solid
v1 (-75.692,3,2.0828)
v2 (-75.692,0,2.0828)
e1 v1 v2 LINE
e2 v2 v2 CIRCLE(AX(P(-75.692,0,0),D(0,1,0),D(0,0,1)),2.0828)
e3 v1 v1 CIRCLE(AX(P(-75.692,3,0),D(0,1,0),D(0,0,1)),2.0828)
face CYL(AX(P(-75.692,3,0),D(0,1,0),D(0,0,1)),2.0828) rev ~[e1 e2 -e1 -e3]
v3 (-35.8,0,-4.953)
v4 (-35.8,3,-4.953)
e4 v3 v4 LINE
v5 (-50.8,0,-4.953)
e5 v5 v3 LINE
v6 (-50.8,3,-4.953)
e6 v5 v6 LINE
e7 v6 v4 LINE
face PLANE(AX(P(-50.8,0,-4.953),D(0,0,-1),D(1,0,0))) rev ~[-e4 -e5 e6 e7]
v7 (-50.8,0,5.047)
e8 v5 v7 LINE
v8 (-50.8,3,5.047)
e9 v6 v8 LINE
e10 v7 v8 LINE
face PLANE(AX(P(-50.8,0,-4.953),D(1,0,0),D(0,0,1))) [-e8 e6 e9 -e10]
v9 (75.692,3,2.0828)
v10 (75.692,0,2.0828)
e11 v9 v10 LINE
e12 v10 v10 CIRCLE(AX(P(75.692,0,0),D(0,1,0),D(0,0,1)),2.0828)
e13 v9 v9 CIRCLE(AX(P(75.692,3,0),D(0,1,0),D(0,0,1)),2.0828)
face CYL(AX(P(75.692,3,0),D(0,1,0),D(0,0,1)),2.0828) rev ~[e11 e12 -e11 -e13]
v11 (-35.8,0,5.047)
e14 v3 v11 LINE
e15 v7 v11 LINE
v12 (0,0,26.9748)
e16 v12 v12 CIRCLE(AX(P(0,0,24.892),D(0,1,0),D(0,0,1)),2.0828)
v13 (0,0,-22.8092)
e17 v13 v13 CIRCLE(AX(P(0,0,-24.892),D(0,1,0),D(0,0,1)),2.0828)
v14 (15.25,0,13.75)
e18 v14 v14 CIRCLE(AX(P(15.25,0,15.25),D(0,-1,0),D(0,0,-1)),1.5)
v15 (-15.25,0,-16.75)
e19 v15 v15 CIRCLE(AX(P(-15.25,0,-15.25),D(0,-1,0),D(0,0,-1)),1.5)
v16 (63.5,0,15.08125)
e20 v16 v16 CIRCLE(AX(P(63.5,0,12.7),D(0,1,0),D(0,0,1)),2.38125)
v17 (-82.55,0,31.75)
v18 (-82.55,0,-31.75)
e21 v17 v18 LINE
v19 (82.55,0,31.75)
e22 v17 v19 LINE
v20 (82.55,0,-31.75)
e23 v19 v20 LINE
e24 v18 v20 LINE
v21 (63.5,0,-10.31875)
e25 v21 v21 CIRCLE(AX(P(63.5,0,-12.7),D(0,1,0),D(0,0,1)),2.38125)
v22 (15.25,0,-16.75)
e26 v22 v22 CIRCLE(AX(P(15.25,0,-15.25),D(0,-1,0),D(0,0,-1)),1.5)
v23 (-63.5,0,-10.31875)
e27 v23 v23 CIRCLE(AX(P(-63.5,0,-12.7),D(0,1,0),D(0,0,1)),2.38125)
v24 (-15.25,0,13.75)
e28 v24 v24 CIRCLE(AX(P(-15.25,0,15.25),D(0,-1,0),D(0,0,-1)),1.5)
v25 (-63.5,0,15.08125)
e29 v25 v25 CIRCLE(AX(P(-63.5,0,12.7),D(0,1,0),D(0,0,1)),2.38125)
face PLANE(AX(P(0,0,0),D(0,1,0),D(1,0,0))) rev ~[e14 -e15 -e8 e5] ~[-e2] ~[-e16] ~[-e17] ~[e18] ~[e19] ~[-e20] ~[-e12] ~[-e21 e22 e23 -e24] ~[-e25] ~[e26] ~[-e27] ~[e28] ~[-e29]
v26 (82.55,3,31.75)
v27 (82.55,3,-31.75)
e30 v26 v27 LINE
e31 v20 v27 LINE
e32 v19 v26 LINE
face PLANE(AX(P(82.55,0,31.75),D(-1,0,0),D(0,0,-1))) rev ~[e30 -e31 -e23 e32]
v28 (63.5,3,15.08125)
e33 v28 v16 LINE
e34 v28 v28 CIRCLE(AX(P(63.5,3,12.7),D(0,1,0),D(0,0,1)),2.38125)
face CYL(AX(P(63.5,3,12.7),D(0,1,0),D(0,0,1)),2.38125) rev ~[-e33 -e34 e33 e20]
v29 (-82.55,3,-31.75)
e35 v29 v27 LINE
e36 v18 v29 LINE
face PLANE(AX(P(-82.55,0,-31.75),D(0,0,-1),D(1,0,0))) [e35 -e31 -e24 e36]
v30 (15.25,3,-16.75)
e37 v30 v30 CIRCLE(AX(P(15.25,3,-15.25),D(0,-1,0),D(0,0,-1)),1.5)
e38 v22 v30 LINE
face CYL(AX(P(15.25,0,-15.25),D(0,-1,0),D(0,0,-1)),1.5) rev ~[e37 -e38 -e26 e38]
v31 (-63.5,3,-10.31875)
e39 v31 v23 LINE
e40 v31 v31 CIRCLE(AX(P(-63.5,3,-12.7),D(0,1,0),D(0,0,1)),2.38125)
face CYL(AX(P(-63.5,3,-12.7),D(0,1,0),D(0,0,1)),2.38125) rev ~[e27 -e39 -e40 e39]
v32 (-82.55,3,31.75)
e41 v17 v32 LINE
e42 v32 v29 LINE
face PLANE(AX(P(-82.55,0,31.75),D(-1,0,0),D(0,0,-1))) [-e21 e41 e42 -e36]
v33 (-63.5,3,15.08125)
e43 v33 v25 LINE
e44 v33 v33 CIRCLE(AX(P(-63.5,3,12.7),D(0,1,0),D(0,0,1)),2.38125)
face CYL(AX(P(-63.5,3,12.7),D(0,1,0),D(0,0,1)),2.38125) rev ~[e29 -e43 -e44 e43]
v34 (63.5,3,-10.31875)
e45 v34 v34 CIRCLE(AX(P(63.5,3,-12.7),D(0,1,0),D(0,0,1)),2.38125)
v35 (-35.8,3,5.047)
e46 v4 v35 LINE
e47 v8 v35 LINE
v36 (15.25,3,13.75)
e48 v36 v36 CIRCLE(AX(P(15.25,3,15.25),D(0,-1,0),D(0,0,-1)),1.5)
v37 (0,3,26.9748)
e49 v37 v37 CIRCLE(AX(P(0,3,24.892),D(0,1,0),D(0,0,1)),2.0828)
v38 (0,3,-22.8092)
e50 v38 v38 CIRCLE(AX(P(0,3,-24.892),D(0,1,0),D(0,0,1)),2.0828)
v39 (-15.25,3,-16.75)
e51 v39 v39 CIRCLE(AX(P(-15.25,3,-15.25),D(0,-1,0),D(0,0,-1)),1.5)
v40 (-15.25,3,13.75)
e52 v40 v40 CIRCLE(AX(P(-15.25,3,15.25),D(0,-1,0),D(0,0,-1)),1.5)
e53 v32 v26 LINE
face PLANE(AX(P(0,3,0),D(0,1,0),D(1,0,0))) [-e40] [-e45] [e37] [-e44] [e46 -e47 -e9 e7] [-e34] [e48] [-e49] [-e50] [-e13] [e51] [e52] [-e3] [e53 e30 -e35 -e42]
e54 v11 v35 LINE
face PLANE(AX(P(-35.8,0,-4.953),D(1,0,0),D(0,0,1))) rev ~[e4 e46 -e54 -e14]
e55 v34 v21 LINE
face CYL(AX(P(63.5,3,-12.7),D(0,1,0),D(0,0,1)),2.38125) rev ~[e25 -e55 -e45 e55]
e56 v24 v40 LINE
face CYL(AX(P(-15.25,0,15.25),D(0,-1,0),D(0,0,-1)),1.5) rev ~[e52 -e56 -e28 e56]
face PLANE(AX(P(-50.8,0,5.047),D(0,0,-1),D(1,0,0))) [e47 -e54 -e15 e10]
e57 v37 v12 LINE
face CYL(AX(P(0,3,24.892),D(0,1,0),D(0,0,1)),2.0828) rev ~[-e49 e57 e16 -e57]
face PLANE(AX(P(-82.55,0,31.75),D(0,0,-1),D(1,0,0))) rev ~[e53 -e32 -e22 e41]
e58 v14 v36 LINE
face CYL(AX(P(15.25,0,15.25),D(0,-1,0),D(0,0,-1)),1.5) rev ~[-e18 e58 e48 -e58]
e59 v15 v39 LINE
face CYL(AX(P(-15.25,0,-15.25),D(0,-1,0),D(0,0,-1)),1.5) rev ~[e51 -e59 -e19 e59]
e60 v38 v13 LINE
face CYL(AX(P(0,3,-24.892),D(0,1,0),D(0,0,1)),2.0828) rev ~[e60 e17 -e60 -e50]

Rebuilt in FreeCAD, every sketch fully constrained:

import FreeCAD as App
import Part
import Sketcher
Q = App.Units.Quantity

doc = App.newDocument("Part")
body = doc.addObject("PartDesign::Body", "Body")

sketch1 = body.newObject("Sketcher::SketchObject", "Sketch")
sketch1.AttachmentSupport = (doc.getObject("XZ_Plane"), [""])
sketch1.MapMode = "FlatFace"
sketch1.addGeometry([
    Part.LineSegment(App.Vector(-83, -32, 0), App.Vector(-83, 32, 0)),
    Part.LineSegment(App.Vector(-83, 32, 0), App.Vector(83, 32, 0)),
    Part.LineSegment(App.Vector(83, 32, 0), App.Vector(83, -32, 0)),
    Part.LineSegment(App.Vector(83, -32, 0), App.Vector(-83, -32, 0)),
], False)
sketch1.addConstraint([
    Sketcher.Constraint("Coincident", 0, 2, 1, 1),
    Sketcher.Constraint("Coincident", 1, 2, 2, 1),
    Sketcher.Constraint("Coincident", 2, 2, 3, 1),
    Sketcher.Constraint("Coincident", 3, 2, 0, 1),
    Sketcher.Constraint("Vertical", 0),
    Sketcher.Constraint("Horizontal", 1),
    Sketcher.Constraint("Vertical", 2),
    Sketcher.Constraint("Horizontal", 3),
    Sketcher.Constraint("Symmetric", 0, 2, 2, 2, -1, 1),
    Sketcher.Constraint("DistanceX", 1, 1, 1, 2, Q("6.5 in")),
    Sketcher.Constraint("DistanceY", 0, 1, 0, 2, Q("2.5 in")),
])
pad1 = body.newObject("PartDesign::Pad", "Pad")
pad1.Profile = sketch1
pad1.Length = 3
pad1.Reversed = True

sketch2 = body.newObject("Sketcher::SketchObject", "Sketch001")
sketch2.AttachmentSupport = (doc.getObject("XZ_Plane"), [""])
sketch2.MapMode = "FlatFace"
sketch2.addGeometry(Part.Circle(App.Vector(-15.2, 15.2, 0), App.Vector(0, 0, 1), 1.5), False)
sketch2.addConstraint([
    Sketcher.Constraint("Diameter", 0, Q("3 mm")),
    Sketcher.Constraint("DistanceX", 0, 3, -1, 1, Q("15.25 mm")),
    Sketcher.Constraint("DistanceY", -1, 1, 0, 3, Q("15.25 mm")),
])
pocket1 = body.newObject("PartDesign::Pocket", "Pocket")
pocket1.Profile = sketch2
pocket1.Type = "UpToFirst"

sketch3 = body.newObject("Sketcher::SketchObject", "Sketch002")
sketch3.AttachmentSupport = (doc.getObject("XZ_Plane"), [""])
sketch3.MapMode = "FlatFace"
sketch3.addGeometry(Part.Circle(App.Vector(15.2, 15.2, 0), App.Vector(0, 0, 1), 1.5), False)
sketch3.addConstraint([
    Sketcher.Constraint("Diameter", 0, Q("3 mm")),
    Sketcher.Constraint("DistanceX", -1, 1, 0, 3, Q("15.25 mm")),
    Sketcher.Constraint("DistanceY", -1, 1, 0, 3, Q("15.25 mm")),
])
pocket2 = body.newObject("PartDesign::Pocket", "Pocket001")
pocket2.Profile = sketch3
pocket2.Type = "UpToFirst"

sketch4 = body.newObject("Sketcher::SketchObject", "Sketch003")
sketch4.AttachmentSupport = (doc.getObject("XZ_Plane"), [""])
sketch4.MapMode = "FlatFace"
sketch4.addGeometry(Part.Circle(App.Vector(-15.2, -15.2, 0), App.Vector(0, 0, 1), 1.5), False)
sketch4.addConstraint([
    Sketcher.Constraint("Diameter", 0, Q("3 mm")),
    Sketcher.Constraint("DistanceX", 0, 3, -1, 1, Q("15.25 mm")),
    Sketcher.Constraint("DistanceY", 0, 3, -1, 1, Q("15.25 mm")),
])
pocket3 = body.newObject("PartDesign::Pocket", "Pocket002")
pocket3.Profile = sketch4
pocket3.Type = "UpToFirst"

sketch5 = body.newObject("Sketcher::SketchObject", "Sketch004")
sketch5.AttachmentSupport = (doc.getObject("XZ_Plane"), [""])
sketch5.MapMode = "FlatFace"
sketch5.addGeometry(Part.Circle(App.Vector(15.2, -15.2, 0), App.Vector(0, 0, 1), 1.5), False)
sketch5.addConstraint([
    Sketcher.Constraint("Diameter", 0, Q("3 mm")),
    Sketcher.Constraint("DistanceX", -1, 1, 0, 3, Q("15.25 mm")),
    Sketcher.Constraint("DistanceY", 0, 3, -1, 1, Q("15.25 mm")),
])
pocket4 = body.newObject("PartDesign::Pocket", "Pocket003")
pocket4.Profile = sketch5
pocket4.Type = "UpToFirst"

sketch6 = body.newObject("Sketcher::SketchObject", "Sketch005")
sketch6.AttachmentSupport = (doc.getObject("XZ_Plane"), [""])
sketch6.MapMode = "FlatFace"
sketch6.addGeometry([
    Part.LineSegment(App.Vector(-51, 5, 0), App.Vector(-51, -5, 0)),
    Part.LineSegment(App.Vector(-51, -5, 0), App.Vector(-36, -5, 0)),
    Part.LineSegment(App.Vector(-36, -5, 0), App.Vector(-36, 5, 0)),
    Part.LineSegment(App.Vector(-36, 5, 0), App.Vector(-51, 5, 0)),
], False)
sketch6.addConstraint([
    Sketcher.Constraint("Coincident", 0, 2, 1, 1),
    Sketcher.Constraint("Coincident", 1, 2, 2, 1),
    Sketcher.Constraint("Coincident", 2, 2, 3, 1),
    Sketcher.Constraint("Coincident", 3, 2, 0, 1),
    Sketcher.Constraint("Vertical", 0),
    Sketcher.Constraint("Horizontal", 1),
    Sketcher.Constraint("Vertical", 2),
    Sketcher.Constraint("Horizontal", 3),
    Sketcher.Constraint("DistanceX", 0, 2, -1, 1, Q("2 in")),
    Sketcher.Constraint("DistanceY", 0, 2, -1, 1, Q("0.195 in")),
    Sketcher.Constraint("DistanceX", 1, 1, 1, 2, Q("15 mm")),
    Sketcher.Constraint("DistanceY", 0, 2, 0, 1, Q("10 mm")),
])
pocket5 = body.newObject("PartDesign::Pocket", "Pocket004")
pocket5.Profile = sketch6
pocket5.Type = "UpToFirst"

sketch7 = body.newObject("Sketcher::SketchObject", "Sketch006")
sketch7.AttachmentSupport = (doc.getObject("XZ_Plane"), [""])
sketch7.MapMode = "FlatFace"
sketch7.AttachmentOffset = App.Placement(App.Vector(0, 0, -3), App.Rotation())
sketch7.addGeometry(Part.Circle(App.Vector(-63.5, 12.7, 0), App.Vector(0, 0, 1), 2.4), False)
sketch7.addConstraint([
    Sketcher.Constraint("Diameter", 0, Q("0.1875 in")),
    Sketcher.Constraint("DistanceX", 0, 3, -1, 1, Q("2.5 in")),
    Sketcher.Constraint("DistanceY", -1, 1, 0, 3, Q("0.5 in")),
])
pocket6 = body.newObject("PartDesign::Pocket", "Pocket005")
pocket6.Profile = sketch7
pocket6.Type = "UpToFirst"
pocket6.Reversed = True

sketch8 = body.newObject("Sketcher::SketchObject", "Sketch007")
sketch8.AttachmentSupport = (doc.getObject("XZ_Plane"), [""])
sketch8.MapMode = "FlatFace"
sketch8.AttachmentOffset = App.Placement(App.Vector(0, 0, -3), App.Rotation())
sketch8.addGeometry(Part.Circle(App.Vector(-63.5, -12.7, 0), App.Vector(0, 0, 1), 2.4), False)
sketch8.addConstraint([
    Sketcher.Constraint("Diameter", 0, Q("0.1875 in")),
    Sketcher.Constraint("DistanceX", 0, 3, -1, 1, Q("2.5 in")),
    Sketcher.Constraint("DistanceY", 0, 3, -1, 1, Q("0.5 in")),
])
pocket7 = body.newObject("PartDesign::Pocket", "Pocket006")
pocket7.Profile = sketch8
pocket7.Type = "UpToFirst"
pocket7.Reversed = True

sketch9 = body.newObject("Sketcher::SketchObject", "Sketch008")
sketch9.AttachmentSupport = (doc.getObject("XZ_Plane"), [""])
sketch9.MapMode = "FlatFace"
sketch9.AttachmentOffset = App.Placement(App.Vector(0, 0, -3), App.Rotation())
sketch9.addGeometry(Part.Circle(App.Vector(63.5, -12.7, 0), App.Vector(0, 0, 1), 2.4), False)
sketch9.addConstraint([
    Sketcher.Constraint("Diameter", 0, Q("0.1875 in")),
    Sketcher.Constraint("DistanceX", -1, 1, 0, 3, Q("2.5 in")),
    Sketcher.Constraint("DistanceY", 0, 3, -1, 1, Q("0.5 in")),
])
pocket8 = body.newObject("PartDesign::Pocket", "Pocket007")
pocket8.Profile = sketch9
pocket8.Type = "UpToFirst"
pocket8.Reversed = True

sketch10 = body.newObject("Sketcher::SketchObject", "Sketch009")
sketch10.AttachmentSupport = (doc.getObject("XZ_Plane"), [""])
sketch10.MapMode = "FlatFace"
sketch10.AttachmentOffset = App.Placement(App.Vector(0, 0, -3), App.Rotation())
sketch10.addGeometry(Part.Circle(App.Vector(63.5, 12.7, 0), App.Vector(0, 0, 1), 2.4), False)
sketch10.addConstraint([
    Sketcher.Constraint("Diameter", 0, Q("0.1875 in")),
    Sketcher.Constraint("DistanceX", -1, 1, 0, 3, Q("2.5 in")),
    Sketcher.Constraint("DistanceY", -1, 1, 0, 3, Q("0.5 in")),
])
pocket9 = body.newObject("PartDesign::Pocket", "Pocket008")
pocket9.Profile = sketch10
pocket9.Type = "UpToFirst"
pocket9.Reversed = True

sketch11 = body.newObject("Sketcher::SketchObject", "Sketch010")
sketch11.AttachmentSupport = (doc.getObject("XZ_Plane"), [""])
sketch11.MapMode = "FlatFace"
sketch11.AttachmentOffset = App.Placement(App.Vector(0, 0, -3), App.Rotation())
sketch11.addGeometry([
    Part.Circle(App.Vector(-75.7, 0, 0), App.Vector(0, 0, 1), 2.1),
    Part.Circle(App.Vector(75.7, 0, 0), App.Vector(0, 0, 1), 2.1),
], False)
sketch11.addConstraint([
    Sketcher.Constraint("Equal", 0, 1),
    Sketcher.Constraint("Symmetric", 0, 3, 1, 3, -1, 1),
    Sketcher.Constraint("PointOnObject", 0, 3, -1),
    Sketcher.Constraint("Diameter", 0, Q("0.164 in")),
    Sketcher.Constraint("DistanceX", 0, 3, -1, 1, Q("2.98 in")),
])
pocket10 = body.newObject("PartDesign::Pocket", "Pocket009")
pocket10.Profile = sketch11
pocket10.Length = Q("0.2 in")
pocket10.Reversed = True

sketch12 = body.newObject("Sketcher::SketchObject", "Sketch011")
sketch12.AttachmentSupport = (doc.getObject("XZ_Plane"), [""])
sketch12.MapMode = "FlatFace"
sketch12.AttachmentOffset = App.Placement(App.Vector(0, 0, -3), App.Rotation())
sketch12.addGeometry([
    Part.Circle(App.Vector(0, 24.9, 0), App.Vector(0, 0, 1), 2.1),
    Part.Circle(App.Vector(0, -24.9, 0), App.Vector(0, 0, 1), 2.1),
], False)
sketch12.addConstraint([
    Sketcher.Constraint("Equal", 0, 1),
    Sketcher.Constraint("Symmetric", 0, 3, 1, 3, -1, 1),
    Sketcher.Constraint("PointOnObject", 0, 3, -2),
    Sketcher.Constraint("Diameter", 0, Q("0.164 in")),
    Sketcher.Constraint("DistanceY", -1, 1, 0, 3, Q("0.98 in")),
])
pocket11 = body.newObject("PartDesign::Pocket", "Pocket010")
pocket11.Profile = sketch12
pocket11.Length = Q("0.2 in")
pocket11.Reversed = True

doc.recompute()
